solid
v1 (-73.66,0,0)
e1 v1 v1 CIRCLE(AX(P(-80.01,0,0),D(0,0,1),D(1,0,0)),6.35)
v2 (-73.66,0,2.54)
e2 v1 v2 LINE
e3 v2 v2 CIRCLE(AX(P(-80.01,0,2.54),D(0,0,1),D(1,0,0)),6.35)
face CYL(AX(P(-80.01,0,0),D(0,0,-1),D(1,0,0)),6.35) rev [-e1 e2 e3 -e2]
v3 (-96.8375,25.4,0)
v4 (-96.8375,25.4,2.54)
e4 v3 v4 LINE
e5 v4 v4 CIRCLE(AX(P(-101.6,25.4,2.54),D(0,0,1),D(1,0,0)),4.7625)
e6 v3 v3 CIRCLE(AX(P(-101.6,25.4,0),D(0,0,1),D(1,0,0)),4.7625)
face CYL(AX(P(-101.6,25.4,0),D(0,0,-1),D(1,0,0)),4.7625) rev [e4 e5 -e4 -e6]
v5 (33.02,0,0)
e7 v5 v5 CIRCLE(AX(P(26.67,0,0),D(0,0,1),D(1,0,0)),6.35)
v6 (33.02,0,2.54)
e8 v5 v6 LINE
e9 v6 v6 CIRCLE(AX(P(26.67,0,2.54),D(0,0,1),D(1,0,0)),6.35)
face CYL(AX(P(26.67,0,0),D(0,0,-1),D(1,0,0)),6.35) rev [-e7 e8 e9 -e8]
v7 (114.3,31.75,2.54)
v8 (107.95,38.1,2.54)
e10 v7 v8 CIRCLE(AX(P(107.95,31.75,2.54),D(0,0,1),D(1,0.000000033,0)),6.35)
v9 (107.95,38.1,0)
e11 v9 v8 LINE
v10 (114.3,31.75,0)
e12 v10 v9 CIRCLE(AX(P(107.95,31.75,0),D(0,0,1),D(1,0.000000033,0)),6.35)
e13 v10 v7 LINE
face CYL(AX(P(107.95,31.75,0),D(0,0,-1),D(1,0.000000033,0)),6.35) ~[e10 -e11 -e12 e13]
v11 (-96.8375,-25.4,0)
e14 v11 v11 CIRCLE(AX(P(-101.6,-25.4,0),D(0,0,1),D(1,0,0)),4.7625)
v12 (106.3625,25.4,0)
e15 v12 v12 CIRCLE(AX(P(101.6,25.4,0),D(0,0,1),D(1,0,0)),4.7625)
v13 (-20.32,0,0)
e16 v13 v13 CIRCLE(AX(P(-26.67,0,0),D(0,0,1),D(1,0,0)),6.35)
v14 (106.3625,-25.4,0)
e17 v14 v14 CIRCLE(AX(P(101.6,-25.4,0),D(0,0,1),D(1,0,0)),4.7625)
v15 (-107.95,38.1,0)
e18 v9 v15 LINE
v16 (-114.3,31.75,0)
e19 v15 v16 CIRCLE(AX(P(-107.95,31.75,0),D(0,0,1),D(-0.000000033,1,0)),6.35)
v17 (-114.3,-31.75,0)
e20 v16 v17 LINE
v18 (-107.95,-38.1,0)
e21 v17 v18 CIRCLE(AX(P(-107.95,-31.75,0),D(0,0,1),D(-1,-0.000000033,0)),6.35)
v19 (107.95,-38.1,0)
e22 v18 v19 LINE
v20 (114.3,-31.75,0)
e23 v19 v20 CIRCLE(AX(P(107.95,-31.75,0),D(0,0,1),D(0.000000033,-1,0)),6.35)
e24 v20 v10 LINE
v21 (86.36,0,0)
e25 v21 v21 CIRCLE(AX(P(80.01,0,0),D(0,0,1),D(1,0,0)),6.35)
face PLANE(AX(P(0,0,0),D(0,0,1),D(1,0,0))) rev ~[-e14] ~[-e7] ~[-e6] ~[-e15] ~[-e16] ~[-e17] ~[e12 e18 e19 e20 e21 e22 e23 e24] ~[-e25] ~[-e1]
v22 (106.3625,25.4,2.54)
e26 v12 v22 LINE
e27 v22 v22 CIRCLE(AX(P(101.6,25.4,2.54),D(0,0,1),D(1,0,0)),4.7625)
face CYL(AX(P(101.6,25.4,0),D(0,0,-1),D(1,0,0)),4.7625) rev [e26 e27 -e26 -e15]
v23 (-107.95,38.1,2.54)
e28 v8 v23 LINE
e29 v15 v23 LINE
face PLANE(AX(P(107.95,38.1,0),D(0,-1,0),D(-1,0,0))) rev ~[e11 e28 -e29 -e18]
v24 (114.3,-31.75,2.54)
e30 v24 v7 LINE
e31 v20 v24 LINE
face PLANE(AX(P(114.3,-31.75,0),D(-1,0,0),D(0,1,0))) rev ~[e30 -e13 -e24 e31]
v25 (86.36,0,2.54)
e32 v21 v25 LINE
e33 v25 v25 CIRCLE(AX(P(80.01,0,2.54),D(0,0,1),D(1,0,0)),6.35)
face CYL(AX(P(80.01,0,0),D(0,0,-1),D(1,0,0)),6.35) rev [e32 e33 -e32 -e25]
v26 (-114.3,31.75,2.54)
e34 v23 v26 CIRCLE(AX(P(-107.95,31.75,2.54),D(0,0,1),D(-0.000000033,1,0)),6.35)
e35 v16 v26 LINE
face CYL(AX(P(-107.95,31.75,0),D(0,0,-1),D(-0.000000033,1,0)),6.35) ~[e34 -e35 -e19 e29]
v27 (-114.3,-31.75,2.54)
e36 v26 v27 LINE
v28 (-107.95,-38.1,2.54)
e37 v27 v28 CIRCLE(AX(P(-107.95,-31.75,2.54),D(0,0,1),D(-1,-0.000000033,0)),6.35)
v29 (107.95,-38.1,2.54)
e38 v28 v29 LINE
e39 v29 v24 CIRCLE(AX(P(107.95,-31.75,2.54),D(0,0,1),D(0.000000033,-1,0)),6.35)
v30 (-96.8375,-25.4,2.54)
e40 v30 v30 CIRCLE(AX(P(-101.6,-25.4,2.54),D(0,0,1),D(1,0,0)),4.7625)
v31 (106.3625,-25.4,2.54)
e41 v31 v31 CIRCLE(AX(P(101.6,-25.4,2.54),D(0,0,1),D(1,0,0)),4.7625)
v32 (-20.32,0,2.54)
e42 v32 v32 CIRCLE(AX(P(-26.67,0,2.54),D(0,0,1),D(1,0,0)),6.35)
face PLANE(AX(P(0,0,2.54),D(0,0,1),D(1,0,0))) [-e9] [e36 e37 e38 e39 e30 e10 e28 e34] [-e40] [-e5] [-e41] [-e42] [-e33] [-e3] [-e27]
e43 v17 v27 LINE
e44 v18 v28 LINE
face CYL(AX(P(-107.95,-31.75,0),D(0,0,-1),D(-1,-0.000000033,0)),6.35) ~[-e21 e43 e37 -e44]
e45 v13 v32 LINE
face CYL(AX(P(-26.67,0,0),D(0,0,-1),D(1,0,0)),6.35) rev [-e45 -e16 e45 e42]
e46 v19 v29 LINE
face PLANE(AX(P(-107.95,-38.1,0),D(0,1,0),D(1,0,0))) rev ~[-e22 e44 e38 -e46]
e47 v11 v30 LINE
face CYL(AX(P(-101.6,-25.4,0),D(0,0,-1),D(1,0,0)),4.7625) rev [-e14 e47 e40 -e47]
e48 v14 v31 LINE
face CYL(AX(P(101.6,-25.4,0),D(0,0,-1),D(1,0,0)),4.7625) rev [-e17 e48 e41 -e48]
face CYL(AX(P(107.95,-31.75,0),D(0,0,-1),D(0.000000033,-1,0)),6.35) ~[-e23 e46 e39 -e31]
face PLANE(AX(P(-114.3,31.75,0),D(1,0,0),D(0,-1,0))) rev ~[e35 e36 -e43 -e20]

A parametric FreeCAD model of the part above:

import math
import FreeCAD as App
import Part
import Sketcher
Q = App.Units.Quantity

doc = App.newDocument("Part")
body = doc.addObject("PartDesign::Body", "Body")

sketch1 = body.newObject("Sketcher::SketchObject", "Sketch")
sketch1.AttachmentSupport = (doc.getObject("XY_Plane"), [""])
sketch1.MapMode = "FlatFace"
sketch1.addGeometry(Part.LineSegment(App.Vector(107.95, 38.1, 0), App.Vector(-107.95, 38.1, 0)), False)
sketch1.addGeometry(Part.ArcOfCircle(Part.Circle(App.Vector(-107.95, 31.75, 0), App.Vector(0, 0, 1), 6.35), math.radians(90.000002), math.radians(179.999998)), False)
sketch1.addGeometry(Part.LineSegment(App.Vector(-114.3, 31.75, 0), App.Vector(-114.3, -31.75, 0)), False)
sketch1.addGeometry(Part.ArcOfCircle(Part.Circle(App.Vector(-107.95, -31.75, 0), App.Vector(0, 0, 1), 6.35), math.radians(-179.999998), math.radians(-90.000002)), False)
sketch1.addGeometry(Part.LineSegment(App.Vector(-107.95, -38.1, 0), App.Vector(107.95, -38.1, 0)), False)
sketch1.addGeometry(Part.ArcOfCircle(Part.Circle(App.Vector(107.95, -31.75, 0), App.Vector(0, 0, 1), 6.35), math.radians(-89.999998), math.radians(-0.000002)), False)
sketch1.addGeometry(Part.LineSegment(App.Vector(114.3, -31.75, 0), App.Vector(114.3, 31.75, 0)), False)
sketch1.addGeometry(Part.ArcOfCircle(Part.Circle(App.Vector(107.95, 31.75, 0), App.Vector(0, 0, 1), 6.35), math.radians(0.000002), math.radians(89.999998)), False)
sketch1.addGeometry(Part.Circle(App.Vector(-101.6, -25.4, 0), App.Vector(0, 0, 1), 4.7625), False)
sketch1.addGeometry(Part.Circle(App.Vector(101.6, -25.4, 0), App.Vector(0, 0, 1), 4.7625), False)
sketch1.addGeometry(Part.Circle(App.Vector(-80.01, 0, 0), App.Vector(0, 0, 1), 6.35), False)
sketch1.addGeometry(Part.Circle(App.Vector(-26.67, 0, 0), App.Vector(0, 0, 1), 6.35), False)
sketch1.addGeometry(Part.Circle(App.Vector(-101.6, 25.4, 0), App.Vector(0, 0, 1), 4.7625), False)
sketch1.addGeometry(Part.Circle(App.Vector(26.67, 0, 0), App.Vector(0, 0, 1), 6.35), False)
sketch1.addGeometry(Part.Circle(App.Vector(80.01, 0, 0), App.Vector(0, 0, 1), 6.35), False)
sketch1.addGeometry(Part.Circle(App.Vector(101.6, 25.4, 0), App.Vector(0, 0, 1), 4.7625), False)
sketch1.addConstraint(Sketcher.Constraint("Tangent", 0, 2, 1, 1))
sketch1.addConstraint(Sketcher.Constraint("Tangent", 1, 2, 2, 1))
sketch1.addConstraint(Sketcher.Constraint("Tangent", 2, 2, 3, 1))
sketch1.addConstraint(Sketcher.Constraint("Tangent", 3, 2, 4, 1))
sketch1.addConstraint(Sketcher.Constraint("Tangent", 4, 2, 5, 1))
sketch1.addConstraint(Sketcher.Constraint("Tangent", 5, 2, 6, 1))
sketch1.addConstraint(Sketcher.Constraint("Tangent", 6, 2, 7, 1))
sketch1.addConstraint(Sketcher.Constraint("Tangent", 7, 2, 0, 1))
sketch1.addConstraint(Sketcher.Constraint("Horizontal", 0))
sketch1.addConstraint(Sketcher.Constraint("Vertical", 2))
sketch1.addConstraint(Sketcher.Constraint("Horizontal", 4))
sketch1.addConstraint(Sketcher.Constraint("Vertical", 6))
sketch1.addConstraint(Sketcher.Constraint("Equal", 1, 3))
sketch1.addConstraint(Sketcher.Constraint("Equal", 3, 5))
sketch1.addConstraint(Sketcher.Constraint("Equal", 5, 7))
sketch1.addConstraint(Sketcher.Constraint("Equal", 8, 9))
sketch1.addConstraint(Sketcher.Constraint("Equal", 7, 10))
sketch1.addConstraint(Sketcher.Constraint("Equal", 10, 11))
sketch1.addConstraint(Sketcher.Constraint("Equal", 9, 12))
sketch1.addConstraint(Sketcher.Constraint("Equal", 11, 13))
sketch1.addConstraint(Sketcher.Constraint("Equal", 13, 14))
sketch1.addConstraint(Sketcher.Constraint("Equal", 12, 15))
sketch1.addConstraint(Sketcher.Constraint("Symmetric", 1, 3, 5, 3, -1, 1))
sketch1.addConstraint(Sketcher.Constraint("Symmetric", 9, 3, 12, 3, -1, 1))
sketch1.addConstraint(Sketcher.Constraint("Symmetric", 11, 3, 13, 3, -1, 1))
sketch1.addConstraint(Sketcher.Constraint("Symmetric", 10, 3, 14, 3, -1, 1))
sketch1.addConstraint(Sketcher.Constraint("Symmetric", 8, 3, 15, 3, -1, 1))
sketch1.addConstraint(Sketcher.Constraint("Symmetric", 8, 3, 9, 3, -2))
sketch1.addConstraint(Sketcher.Constraint("PointOnObject", 10, 3, -1))
sketch1.addConstraint(Sketcher.Constraint("PointOnObject", 11, 3, -1))
sketch1.addConstraint(Sketcher.Constraint("Diameter", 10, Q("0.5 in")))
sketch1.addConstraint(Sketcher.Constraint("Diameter", 8, Q("0.375 in")))
sketch1.addConstraint(Sketcher.Constraint("DistanceX", 0, 2, 0, 1, Q("8.5 in")))
sketch1.addConstraint(Sketcher.Constraint("DistanceY", 2, 2, 2, 1, Q("2.5 in")))
sketch1.addConstraint(Sketcher.Constraint("DistanceX", 8, 3, -1, 1, Q("4 in")))
sketch1.addConstraint(Sketcher.Constraint("DistanceY", 8, 3, -1, 1, Q("1 in")))
sketch1.addConstraint(Sketcher.Constraint("DistanceX", 1, 3, 10, 3, Q("1.1 in")))
sketch1.addConstraint(Sketcher.Constraint("DistanceX", 10, 3, 11, 3, Q("2.1 in")))
pad1 = body.newObject("PartDesign::Pad", "Pad")
pad1.Profile = sketch1
pad1.Length = Q("0.1 in")

doc.recompute()
